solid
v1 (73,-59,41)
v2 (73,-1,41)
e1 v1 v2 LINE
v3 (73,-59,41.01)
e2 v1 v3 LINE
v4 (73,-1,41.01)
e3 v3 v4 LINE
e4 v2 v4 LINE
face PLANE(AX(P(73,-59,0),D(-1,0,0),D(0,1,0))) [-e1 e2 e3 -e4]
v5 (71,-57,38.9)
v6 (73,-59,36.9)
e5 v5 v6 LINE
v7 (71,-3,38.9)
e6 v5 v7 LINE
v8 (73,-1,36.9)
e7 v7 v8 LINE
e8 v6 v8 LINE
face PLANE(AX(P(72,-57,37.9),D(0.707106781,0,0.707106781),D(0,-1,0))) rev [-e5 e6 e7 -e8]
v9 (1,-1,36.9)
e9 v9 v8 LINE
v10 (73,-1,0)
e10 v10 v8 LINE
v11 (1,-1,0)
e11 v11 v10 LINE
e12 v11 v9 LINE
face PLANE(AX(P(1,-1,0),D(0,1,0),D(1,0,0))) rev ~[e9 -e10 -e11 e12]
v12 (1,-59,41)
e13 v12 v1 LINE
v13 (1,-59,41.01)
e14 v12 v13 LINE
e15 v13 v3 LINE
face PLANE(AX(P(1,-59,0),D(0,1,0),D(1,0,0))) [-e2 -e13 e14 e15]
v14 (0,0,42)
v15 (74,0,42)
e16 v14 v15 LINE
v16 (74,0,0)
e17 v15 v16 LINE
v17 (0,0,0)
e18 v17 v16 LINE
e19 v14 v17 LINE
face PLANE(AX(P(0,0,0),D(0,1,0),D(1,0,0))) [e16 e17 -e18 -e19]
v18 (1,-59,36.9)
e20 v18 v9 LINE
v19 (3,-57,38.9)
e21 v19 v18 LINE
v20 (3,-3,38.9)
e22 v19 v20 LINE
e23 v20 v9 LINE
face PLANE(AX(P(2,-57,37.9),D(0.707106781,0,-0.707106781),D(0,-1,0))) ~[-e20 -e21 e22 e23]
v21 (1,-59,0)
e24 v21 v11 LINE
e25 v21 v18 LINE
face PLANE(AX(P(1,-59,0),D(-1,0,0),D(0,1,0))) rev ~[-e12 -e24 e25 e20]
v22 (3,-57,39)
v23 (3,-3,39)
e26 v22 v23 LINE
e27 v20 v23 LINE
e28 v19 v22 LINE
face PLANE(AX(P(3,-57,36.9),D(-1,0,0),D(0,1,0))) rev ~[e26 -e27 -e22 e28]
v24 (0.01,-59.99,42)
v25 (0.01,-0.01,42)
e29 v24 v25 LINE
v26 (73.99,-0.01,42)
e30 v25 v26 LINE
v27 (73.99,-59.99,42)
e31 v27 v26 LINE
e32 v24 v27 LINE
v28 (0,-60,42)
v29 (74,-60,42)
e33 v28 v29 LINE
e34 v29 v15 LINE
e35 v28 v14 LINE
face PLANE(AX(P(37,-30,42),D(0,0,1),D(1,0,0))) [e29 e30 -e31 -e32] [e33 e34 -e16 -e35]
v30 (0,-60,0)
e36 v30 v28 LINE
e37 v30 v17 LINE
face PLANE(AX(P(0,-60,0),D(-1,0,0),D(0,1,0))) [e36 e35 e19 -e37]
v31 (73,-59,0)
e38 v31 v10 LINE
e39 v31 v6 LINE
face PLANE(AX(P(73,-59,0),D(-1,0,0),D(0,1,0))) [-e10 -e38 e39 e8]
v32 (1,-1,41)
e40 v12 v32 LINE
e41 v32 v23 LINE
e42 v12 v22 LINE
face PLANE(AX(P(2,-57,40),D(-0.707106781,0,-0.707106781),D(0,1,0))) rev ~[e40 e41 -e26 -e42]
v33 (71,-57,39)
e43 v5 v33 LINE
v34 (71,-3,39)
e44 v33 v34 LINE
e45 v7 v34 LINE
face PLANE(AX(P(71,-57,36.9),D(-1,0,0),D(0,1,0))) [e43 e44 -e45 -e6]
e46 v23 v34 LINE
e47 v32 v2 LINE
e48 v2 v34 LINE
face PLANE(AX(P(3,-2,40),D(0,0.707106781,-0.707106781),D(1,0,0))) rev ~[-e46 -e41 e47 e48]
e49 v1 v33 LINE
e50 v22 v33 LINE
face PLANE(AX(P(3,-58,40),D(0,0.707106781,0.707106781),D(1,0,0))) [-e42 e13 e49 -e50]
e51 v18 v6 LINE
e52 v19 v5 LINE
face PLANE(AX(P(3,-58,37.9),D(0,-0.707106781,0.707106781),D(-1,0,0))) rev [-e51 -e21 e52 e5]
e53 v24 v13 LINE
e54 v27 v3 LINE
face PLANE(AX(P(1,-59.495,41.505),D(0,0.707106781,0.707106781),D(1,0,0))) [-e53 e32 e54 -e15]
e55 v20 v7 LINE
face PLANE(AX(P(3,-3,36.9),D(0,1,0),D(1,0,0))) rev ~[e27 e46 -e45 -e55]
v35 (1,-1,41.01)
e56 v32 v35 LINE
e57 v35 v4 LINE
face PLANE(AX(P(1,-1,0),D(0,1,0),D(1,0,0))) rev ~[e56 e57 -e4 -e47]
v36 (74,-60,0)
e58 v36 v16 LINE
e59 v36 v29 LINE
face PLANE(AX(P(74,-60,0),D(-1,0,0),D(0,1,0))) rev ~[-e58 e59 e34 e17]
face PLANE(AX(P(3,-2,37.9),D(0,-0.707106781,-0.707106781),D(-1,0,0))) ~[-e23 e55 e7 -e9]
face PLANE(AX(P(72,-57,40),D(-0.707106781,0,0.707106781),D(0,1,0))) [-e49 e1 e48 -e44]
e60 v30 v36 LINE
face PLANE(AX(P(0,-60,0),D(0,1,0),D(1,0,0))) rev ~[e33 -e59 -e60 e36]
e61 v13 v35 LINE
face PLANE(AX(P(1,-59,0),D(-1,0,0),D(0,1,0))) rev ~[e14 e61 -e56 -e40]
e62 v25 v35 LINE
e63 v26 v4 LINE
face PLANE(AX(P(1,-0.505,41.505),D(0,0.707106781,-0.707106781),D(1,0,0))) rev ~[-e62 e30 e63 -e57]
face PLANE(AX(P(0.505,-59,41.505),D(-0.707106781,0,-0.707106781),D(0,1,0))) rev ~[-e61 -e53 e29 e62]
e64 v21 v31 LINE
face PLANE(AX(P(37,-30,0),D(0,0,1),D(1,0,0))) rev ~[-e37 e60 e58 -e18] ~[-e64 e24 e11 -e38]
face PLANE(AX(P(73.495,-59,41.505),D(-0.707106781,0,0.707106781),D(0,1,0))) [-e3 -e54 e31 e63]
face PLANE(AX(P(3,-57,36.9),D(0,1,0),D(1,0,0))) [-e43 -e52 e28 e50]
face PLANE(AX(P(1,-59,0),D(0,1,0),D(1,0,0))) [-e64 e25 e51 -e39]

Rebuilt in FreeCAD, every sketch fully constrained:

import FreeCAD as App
import Part
import Sketcher

V = App.Vector


def edges_at(feature, points):
    """Names of the edges that pass closest to the given points."""
    edges = feature.Shape.Edges
    near = lambda p: min(range(len(edges)), key=lambda i: edges[i].distToShape(Part.Vertex(*p))[0])
    return sorted({f"Edge{near(p) + 1}" for p in points})


def add_polygon(sketch, points):
    """Adds a closed chain of lines whose ends are joined by coincident constraints."""
    first, n = sketch.GeometryCount, len(points)
    for a, b in zip(points, points[1:] + points[:1]):
        sketch.addGeometry(Part.LineSegment(App.Vector(*a, 0), App.Vector(*b, 0)), False)
    for i in range(n):
        sketch.addConstraint(Sketcher.Constraint("Coincident", first + i, 2, first + (i + 1) % n, 1))

doc = App.newDocument("Part")
body = doc.addObject("PartDesign::Body", "Body")

# Sketch on XY plane
sketch1 = body.newObject("Sketcher::SketchObject", "Sketch")
sketch1.AttachmentSupport = (doc.getObject("XY_Plane"), [""])
sketch1.MapMode = "FlatFace"
add_polygon(sketch1, [(3, -3), (3, -57), (71, -57), (71, -3)])  # lines 0-3
sketch1.addConstraint(Sketcher.Constraint("Vertical", 0))
sketch1.addConstraint(Sketcher.Constraint("Horizontal", 1))
sketch1.addConstraint(Sketcher.Constraint("Vertical", 2))
sketch1.addConstraint(Sketcher.Constraint("Horizontal", 3))
sketch1.addConstraint(Sketcher.Constraint("DistanceX", 1, 1, 1, 2, 68.0))
sketch1.addConstraint(Sketcher.Constraint("DistanceY", 0, 2, 0, 1, 54.0))
sketch1.addConstraint(Sketcher.Constraint("DistanceX", -1, 1, 0, 2, 3.0))
sketch1.addConstraint(Sketcher.Constraint("DistanceY", 0, 2, -1, 1, 57.0))
pad1 = body.newObject("PartDesign::Pad", "Pad")
pad1.Profile = sketch1
pad1.Length = 4.1
body2 = doc.addObject("PartDesign::Body", "Body001")

# Sketch on XY plane
sketch2 = body2.newObject("Sketcher::SketchObject", "Sketch001")
sketch2.AttachmentSupport = (doc.getObject("XY_Plane001"), [""])
sketch2.MapMode = "FlatFace"
add_polygon(sketch2, [(0, 0), (0, -60), (74, -60), (74, 0)])  # lines 0-3
sketch2.addConstraint(Sketcher.Constraint("Vertical", 0))
sketch2.addConstraint(Sketcher.Constraint("Horizontal", 1))
sketch2.addConstraint(Sketcher.Constraint("Vertical", 2))
sketch2.addConstraint(Sketcher.Constraint("Horizontal", 3))
sketch2.addConstraint(Sketcher.Constraint("Coincident", 3, 2, -1, 1))
sketch2.addConstraint(Sketcher.Constraint("DistanceX", 1, 1, 1, 2, 74.0))
sketch2.addConstraint(Sketcher.Constraint("DistanceY", 0, 2, 0, 1, 60.0))
pad2 = body2.newObject("PartDesign::Pad", "Pad001")
pad2.Profile = sketch2
pad2.Length = 4.1
doc.recompute()

boolean = body2.newObject("PartDesign::Boolean", "Boolean")
boolean.Type = "Cut"
boolean.addObjects([body])
body3 = doc.addObject("PartDesign::Body", "Body002")
doc.recompute()

body2.Placement = App.Placement(V(0, 0, 36.9), App.Rotation(V(0, 0, 1), 0))
boolean2 = body3.newObject("PartDesign::Boolean", "Boolean001")
boolean2.Type = "Fuse"
boolean2.addObjects([body2])
doc.recompute()

chamfer = body3.newObject("PartDesign::Chamfer", "Chamfer")
chamfer.Base = (boolean2, edges_at(boolean2, [
    (37, -3, 41),
    (3, -30, 41),
    (37, -57, 41),
    (71, -30, 41),
]))
chamfer.Size = 2
doc.recompute()

chamfer2 = body3.newObject("PartDesign::Chamfer", "Chamfer001")
chamfer2.Base = (chamfer, edges_at(chamfer, [
    (37, -3, 36.9),
    (3, -30, 36.9),
    (71, -30, 36.9),
    (37, -57, 36.9),
]))
chamfer2.Size = 2
body4 = doc.addObject("PartDesign::Body", "Body003")

# Sketch on XY plane
sketch3 = body4.newObject("Sketcher::SketchObject", "Sketch002")
sketch3.AttachmentSupport = (doc.getObject("XY_Plane003"), [""])
sketch3.MapMode = "FlatFace"
add_polygon(sketch3, [(1, -1), (1, -59), (73, -59), (73, -1)])  # lines 0-3
sketch3.addConstraint(Sketcher.Constraint("Vertical", 0))
sketch3.addConstraint(Sketcher.Constraint("Horizontal", 1))
sketch3.addConstraint(Sketcher.Constraint("Vertical", 2))
sketch3.addConstraint(Sketcher.Constraint("Horizontal", 3))
sketch3.addConstraint(Sketcher.Constraint("DistanceX", 1, 1, 1, 2, 72.0))
sketch3.addConstraint(Sketcher.Constraint("DistanceY", 0, 2, 0, 1, 58.0))
sketch3.addConstraint(Sketcher.Constraint("DistanceX", -1, 1, 0, 2, 1.0))
sketch3.addConstraint(Sketcher.Constraint("DistanceY", 0, 2, -1, 1, 59.0))
pad3 = body4.newObject("PartDesign::Pad", "Pad002")
pad3.Profile = sketch3
pad3.Length = 42
body5 = doc.addObject("PartDesign::Body", "Body004")

# Sketch on XY plane
sketch4 = body5.newObject("Sketcher::SketchObject", "Sketch003")
sketch4.AttachmentSupport = (doc.getObject("XY_Plane004"), [""])
sketch4.MapMode = "FlatFace"
add_polygon(sketch4, [(0, 0), (0, -60), (74, -60), (74, 0)])  # lines 0-3
sketch4.addConstraint(Sketcher.Constraint("Vertical", 0))
sketch4.addConstraint(Sketcher.Constraint("Horizontal", 1))
sketch4.addConstraint(Sketcher.Constraint("Vertical", 2))
sketch4.addConstraint(Sketcher.Constraint("Horizontal", 3))
sketch4.addConstraint(Sketcher.Constraint("Coincident", 3, 2, -1, 1))
sketch4.addConstraint(Sketcher.Constraint("DistanceX", 1, 1, 1, 2, 74.0))
sketch4.addConstraint(Sketcher.Constraint("DistanceY", 0, 2, 0, 1, 60.0))
pad4 = body5.newObject("PartDesign::Pad", "Pad003")
pad4.Profile = sketch4
pad4.Length = 42
doc.recompute()

boolean3 = body5.newObject("PartDesign::Boolean", "Boolean002")
boolean3.Type = "Cut"
boolean3.addObjects([body4])
doc.recompute()

chamfer3 = body5.newObject("PartDesign::Chamfer", "Chamfer002")
chamfer3.Base = (boolean3, edges_at(boolean3, [
    (37, -1, 42),
    (1, -30, 42),
    (37, -59, 42),
    (73, -30, 42),
]))
chamfer3.Size = 0.99
doc.recompute()

boolean4 = body5.newObject("PartDesign::Boolean", "Boolean003")
boolean4.Type = "Fuse"
boolean4.addObjects([body3])

doc.recompute()
